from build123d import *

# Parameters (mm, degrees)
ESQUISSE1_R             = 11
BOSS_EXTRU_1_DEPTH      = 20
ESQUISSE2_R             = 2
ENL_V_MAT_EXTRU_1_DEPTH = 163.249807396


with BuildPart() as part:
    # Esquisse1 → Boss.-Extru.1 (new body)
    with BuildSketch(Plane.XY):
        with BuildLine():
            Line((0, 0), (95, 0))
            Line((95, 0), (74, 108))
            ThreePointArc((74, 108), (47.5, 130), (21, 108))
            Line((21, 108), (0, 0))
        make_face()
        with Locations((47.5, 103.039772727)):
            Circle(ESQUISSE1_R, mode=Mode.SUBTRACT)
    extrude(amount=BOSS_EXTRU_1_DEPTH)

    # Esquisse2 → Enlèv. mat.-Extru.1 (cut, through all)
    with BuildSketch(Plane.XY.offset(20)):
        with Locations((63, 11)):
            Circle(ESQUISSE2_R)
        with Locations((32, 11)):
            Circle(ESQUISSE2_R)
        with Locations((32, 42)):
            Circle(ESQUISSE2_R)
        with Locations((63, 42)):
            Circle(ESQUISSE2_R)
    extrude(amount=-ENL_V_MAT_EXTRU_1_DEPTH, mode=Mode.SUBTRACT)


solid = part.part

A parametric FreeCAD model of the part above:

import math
import FreeCAD as App
import Part
import Sketcher

V = App.Vector

doc = App.newDocument("Part")
body = doc.addObject("PartDesign::Body", "Body")

# Sketch on XY plane
sketch1 = body.newObject("Sketcher::SketchObject", "Sketch")
sketch1.AttachmentSupport = (doc.getObject("XY_Plane"), [""])
sketch1.MapMode = "FlatFace"
sketch1.addGeometry([
    Part.LineSegment(V(0, 0, 0), V(95, 0, 0)),  # 0
    Part.LineSegment(V(95, 0, 0), V(74, 108, 0)),  # 1
    Part.ArcOfCircle(Part.Circle(V(47.5, 103.039773, 0), V(0, 0, 1), 26.960227), math.radians(10.601853), math.radians(169.398147)),  # 2
    Part.LineSegment(V(21, 108, 0), V(0, 0, 0)),  # 3
    Part.Circle(V(47.5, 103.039773, 0), V(0, 0, 1), 11),  # 4
], False)
sketch1.addConstraint([
    Sketcher.Constraint("Coincident", 0, 2, 1, 1),
    Sketcher.Constraint("Coincident", 1, 2, 2, 1),
    Sketcher.Constraint("Coincident", 2, 2, 3, 1),
    Sketcher.Constraint("Coincident", 3, 2, 0, 1),
    Sketcher.Constraint("Horizontal", 0),
    Sketcher.Constraint("Coincident", 3, 2, -1, 1),
    Sketcher.Constraint("Coincident", 4, 3, 2, 3),
    Sketcher.Constraint("Horizontal", 1, 2, 2, 2),
    Sketcher.Constraint("Equal", 1, 3),
    Sketcher.Constraint("Diameter", 4, 22.0),
    Sketcher.Constraint("DistanceX", 0, 1, 0, 2, 95.0),
    Sketcher.Constraint("DistanceX", -1, 1, 1, 2, 74.0),
    Sketcher.Constraint("DistanceY", -1, 1, 1, 2, 108.0),
    Sketcher.Constraint("Radius", 2, 26.960227),
])
pad1 = body.newObject("PartDesign::Pad", "Pad")
pad1.Profile = sketch1
pad1.Length = 20

# Sketch on XY plane
sketch2 = body.newObject("Sketcher::SketchObject", "Sketch001")
sketch2.AttachmentSupport = (doc.getObject("XY_Plane"), [""])
sketch2.MapMode = "FlatFace"
sketch2.AttachmentOffset = App.Placement(V(0, 0, 20), App.Rotation())
sketch2.addGeometry([
    Part.Circle(V(63, 11, 0), V(0, 0, 1), 2),
    Part.Circle(V(32, 11, 0), V(0, 0, 1), 2),
    Part.Circle(V(32, 42, 0), V(0, 0, 1), 2),
    Part.Circle(V(63, 42, 0), V(0, 0, 1), 2),
], False)
sketch2.addConstraint([
    Sketcher.Constraint("Equal", 0, 1),
    Sketcher.Constraint("Equal", 1, 2),
    Sketcher.Constraint("Equal", 2, 3),
    Sketcher.Constraint("Horizontal", 0, 3, 1, 3),
    Sketcher.Constraint("Horizontal", 2, 3, 3, 3),
    Sketcher.Constraint("Vertical", 1, 3, 2, 3),
    Sketcher.Constraint("Vertical", 0, 3, 3, 3),
    Sketcher.Constraint("Diameter", 0, 4.0),
    Sketcher.Constraint("DistanceX", -1, 1, 0, 3, 63.0),
    Sketcher.Constraint("DistanceY", -1, 1, 0, 3, 11.0),
    Sketcher.Constraint("DistanceX", -1, 1, 1, 3, 32.0),
    Sketcher.Constraint("DistanceY", -1, 1, 2, 3, 42.0),
])
pocket1 = body.newObject("PartDesign::Pocket", "Pocket")
pocket1.Profile = sketch2
pocket1.Type = "ThroughAll"

doc.recompute()
